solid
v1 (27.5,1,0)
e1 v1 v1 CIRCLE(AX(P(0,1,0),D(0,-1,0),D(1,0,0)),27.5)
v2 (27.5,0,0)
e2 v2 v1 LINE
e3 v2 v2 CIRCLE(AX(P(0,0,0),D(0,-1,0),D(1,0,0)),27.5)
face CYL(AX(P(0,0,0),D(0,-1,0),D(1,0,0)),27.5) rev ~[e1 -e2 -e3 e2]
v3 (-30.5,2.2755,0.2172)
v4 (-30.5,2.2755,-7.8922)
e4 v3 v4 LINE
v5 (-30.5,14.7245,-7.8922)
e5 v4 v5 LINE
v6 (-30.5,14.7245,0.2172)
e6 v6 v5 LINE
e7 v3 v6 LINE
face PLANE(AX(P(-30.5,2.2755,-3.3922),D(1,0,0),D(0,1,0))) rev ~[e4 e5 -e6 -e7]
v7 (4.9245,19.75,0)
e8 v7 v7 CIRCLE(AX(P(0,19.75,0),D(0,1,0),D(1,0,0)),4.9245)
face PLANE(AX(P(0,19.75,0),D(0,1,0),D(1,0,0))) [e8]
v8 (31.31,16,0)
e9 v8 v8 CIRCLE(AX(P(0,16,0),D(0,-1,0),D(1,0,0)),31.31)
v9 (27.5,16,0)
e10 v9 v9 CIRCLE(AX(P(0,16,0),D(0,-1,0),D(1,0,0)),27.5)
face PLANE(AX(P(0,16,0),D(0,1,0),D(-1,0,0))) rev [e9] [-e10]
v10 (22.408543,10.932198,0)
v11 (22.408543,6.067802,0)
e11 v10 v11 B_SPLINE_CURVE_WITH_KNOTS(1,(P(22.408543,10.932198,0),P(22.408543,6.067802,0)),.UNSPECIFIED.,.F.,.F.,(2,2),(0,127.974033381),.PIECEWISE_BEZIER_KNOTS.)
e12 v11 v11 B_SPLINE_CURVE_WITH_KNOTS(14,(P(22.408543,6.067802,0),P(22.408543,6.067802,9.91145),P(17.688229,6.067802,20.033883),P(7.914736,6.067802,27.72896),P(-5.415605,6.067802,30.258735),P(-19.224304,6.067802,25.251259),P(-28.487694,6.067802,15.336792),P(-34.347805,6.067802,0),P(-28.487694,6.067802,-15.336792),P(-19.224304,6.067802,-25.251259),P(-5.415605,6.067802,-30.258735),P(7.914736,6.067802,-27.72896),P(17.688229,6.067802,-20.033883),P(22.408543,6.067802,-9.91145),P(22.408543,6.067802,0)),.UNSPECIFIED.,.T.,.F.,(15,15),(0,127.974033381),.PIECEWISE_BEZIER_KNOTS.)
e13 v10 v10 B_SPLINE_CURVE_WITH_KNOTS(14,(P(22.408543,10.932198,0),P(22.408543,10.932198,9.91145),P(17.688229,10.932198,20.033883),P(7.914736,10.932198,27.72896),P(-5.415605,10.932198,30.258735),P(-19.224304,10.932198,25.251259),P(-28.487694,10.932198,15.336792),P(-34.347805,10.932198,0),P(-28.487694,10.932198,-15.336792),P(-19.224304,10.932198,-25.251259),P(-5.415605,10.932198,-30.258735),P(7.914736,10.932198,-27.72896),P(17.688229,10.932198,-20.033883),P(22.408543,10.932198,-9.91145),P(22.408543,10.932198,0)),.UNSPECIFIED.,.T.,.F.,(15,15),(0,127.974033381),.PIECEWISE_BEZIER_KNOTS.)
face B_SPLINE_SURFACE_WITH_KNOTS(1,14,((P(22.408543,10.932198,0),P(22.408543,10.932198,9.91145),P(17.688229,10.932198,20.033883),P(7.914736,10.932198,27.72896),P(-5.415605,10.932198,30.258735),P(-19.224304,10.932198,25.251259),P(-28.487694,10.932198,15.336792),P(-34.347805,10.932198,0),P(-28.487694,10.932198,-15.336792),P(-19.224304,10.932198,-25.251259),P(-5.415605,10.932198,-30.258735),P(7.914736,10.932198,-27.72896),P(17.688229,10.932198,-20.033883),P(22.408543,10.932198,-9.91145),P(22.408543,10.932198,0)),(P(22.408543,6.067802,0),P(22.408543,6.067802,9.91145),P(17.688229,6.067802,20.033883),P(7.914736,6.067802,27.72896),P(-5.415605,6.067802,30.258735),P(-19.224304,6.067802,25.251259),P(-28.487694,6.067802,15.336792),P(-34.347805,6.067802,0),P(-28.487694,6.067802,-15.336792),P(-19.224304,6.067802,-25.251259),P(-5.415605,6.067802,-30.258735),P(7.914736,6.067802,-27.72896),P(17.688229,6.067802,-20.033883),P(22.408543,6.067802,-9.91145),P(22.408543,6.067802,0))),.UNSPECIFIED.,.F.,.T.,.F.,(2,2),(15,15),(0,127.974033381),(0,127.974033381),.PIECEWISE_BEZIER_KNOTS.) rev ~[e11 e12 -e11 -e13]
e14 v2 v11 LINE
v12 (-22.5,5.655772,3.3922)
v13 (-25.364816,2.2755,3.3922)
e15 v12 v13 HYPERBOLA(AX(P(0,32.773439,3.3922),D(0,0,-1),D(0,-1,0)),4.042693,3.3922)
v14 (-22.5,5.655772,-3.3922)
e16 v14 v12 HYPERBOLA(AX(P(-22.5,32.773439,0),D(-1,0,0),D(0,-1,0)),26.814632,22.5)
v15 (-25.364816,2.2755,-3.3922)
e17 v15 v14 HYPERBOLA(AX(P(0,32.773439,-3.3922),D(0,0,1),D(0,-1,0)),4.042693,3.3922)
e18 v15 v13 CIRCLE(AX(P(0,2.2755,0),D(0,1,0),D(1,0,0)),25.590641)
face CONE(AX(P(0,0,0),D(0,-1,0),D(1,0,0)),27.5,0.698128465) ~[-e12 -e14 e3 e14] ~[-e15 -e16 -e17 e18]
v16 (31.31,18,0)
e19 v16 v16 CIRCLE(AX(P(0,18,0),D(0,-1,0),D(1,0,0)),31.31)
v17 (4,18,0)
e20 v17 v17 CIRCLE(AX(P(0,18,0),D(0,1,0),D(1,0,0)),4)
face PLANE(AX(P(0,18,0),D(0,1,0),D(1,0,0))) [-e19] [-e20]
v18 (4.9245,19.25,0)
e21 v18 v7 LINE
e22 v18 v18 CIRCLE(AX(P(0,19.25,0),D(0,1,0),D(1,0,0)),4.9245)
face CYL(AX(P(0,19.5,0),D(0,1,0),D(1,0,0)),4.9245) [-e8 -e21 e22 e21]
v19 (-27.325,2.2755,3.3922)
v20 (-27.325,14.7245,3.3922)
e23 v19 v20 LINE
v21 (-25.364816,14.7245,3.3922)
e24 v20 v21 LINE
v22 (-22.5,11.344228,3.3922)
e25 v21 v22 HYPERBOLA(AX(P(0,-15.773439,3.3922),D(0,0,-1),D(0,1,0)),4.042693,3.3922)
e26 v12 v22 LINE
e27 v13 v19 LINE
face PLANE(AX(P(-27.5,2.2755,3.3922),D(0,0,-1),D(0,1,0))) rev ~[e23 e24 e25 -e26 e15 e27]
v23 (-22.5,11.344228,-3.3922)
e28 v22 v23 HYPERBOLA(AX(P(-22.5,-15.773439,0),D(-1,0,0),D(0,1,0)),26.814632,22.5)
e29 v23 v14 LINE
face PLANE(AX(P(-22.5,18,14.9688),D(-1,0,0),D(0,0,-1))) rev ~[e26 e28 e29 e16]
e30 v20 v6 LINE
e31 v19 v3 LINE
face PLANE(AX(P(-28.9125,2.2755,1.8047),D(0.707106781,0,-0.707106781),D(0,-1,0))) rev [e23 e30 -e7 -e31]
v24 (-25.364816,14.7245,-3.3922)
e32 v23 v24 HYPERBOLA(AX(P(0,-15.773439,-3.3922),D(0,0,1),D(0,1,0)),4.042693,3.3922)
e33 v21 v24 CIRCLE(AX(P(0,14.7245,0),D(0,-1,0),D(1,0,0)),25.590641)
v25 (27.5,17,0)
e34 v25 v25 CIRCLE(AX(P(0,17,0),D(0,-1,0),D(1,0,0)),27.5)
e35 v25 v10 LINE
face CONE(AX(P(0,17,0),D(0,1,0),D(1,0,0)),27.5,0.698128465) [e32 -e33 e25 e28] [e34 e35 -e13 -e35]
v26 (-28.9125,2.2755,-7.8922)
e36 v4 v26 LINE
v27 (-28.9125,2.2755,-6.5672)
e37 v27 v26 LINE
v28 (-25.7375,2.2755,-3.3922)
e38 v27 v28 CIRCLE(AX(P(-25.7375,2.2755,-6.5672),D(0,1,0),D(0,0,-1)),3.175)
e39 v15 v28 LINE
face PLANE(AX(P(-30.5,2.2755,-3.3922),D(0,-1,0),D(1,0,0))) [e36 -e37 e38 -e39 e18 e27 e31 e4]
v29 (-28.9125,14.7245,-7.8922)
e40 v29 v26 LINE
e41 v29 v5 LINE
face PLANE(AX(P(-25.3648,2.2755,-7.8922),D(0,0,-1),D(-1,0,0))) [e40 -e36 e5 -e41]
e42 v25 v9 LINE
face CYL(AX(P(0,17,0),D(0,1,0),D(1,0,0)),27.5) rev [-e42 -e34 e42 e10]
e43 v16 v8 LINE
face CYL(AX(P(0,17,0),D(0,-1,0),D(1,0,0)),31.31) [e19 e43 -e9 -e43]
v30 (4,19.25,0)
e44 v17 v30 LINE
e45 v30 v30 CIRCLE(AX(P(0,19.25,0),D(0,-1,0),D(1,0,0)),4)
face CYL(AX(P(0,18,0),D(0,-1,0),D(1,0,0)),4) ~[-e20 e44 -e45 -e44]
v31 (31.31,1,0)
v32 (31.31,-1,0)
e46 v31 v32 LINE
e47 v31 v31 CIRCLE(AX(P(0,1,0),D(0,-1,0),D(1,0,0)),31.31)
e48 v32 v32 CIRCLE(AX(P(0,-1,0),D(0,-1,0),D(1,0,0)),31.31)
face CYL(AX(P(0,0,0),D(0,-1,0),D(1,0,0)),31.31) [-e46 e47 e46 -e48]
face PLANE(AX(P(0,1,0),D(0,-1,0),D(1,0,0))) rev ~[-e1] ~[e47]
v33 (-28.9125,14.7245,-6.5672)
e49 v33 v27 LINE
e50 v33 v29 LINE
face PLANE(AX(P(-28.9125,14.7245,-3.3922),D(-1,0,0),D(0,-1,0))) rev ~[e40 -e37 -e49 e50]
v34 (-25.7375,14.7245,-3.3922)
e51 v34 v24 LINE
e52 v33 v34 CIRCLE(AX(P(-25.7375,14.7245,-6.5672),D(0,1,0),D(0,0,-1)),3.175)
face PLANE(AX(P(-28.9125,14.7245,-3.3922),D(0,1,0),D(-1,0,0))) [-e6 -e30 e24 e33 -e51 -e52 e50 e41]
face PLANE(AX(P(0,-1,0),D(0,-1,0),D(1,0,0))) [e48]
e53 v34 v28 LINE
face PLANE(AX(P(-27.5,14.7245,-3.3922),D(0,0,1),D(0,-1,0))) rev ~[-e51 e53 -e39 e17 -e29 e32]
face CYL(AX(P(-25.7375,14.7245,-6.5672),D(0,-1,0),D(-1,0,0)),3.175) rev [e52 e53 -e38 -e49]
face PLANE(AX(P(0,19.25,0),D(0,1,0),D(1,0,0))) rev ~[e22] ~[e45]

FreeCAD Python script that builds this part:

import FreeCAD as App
import Part
import Sketcher
from FreeCAD import Vector
Q = App.Units.Quantity


def edges_at(feature, points):
    """Names of the edges that pass closest to the given points."""
    edges = feature.Shape.Edges
    near = lambda p: min(range(len(edges)), key=lambda i: edges[i].distToShape(Part.Vertex(*p))[0])
    return sorted({f"Edge{near(p) + 1}" for p in points})


def add_polygon(sketch, points):
    """Adds a closed chain of lines whose ends are joined by coincident constraints."""
    first, n = sketch.GeometryCount, len(points)
    for a, b in zip(points, points[1:] + points[:1]):
        sketch.addGeometry(Part.LineSegment(App.Vector(*a, 0), App.Vector(*b, 0)), False)
    for i in range(n):
        sketch.addConstraint(Sketcher.Constraint("Coincident", first + i, 2, first + (i + 1) % n, 1))

doc = App.newDocument("Part")
body = doc.addObject("PartDesign::Body", "Body")
body.AllowCompound = True

# Sketch on XY plane
sketch1 = doc.addObject("Sketcher::SketchObject", "Sketch")
body.addObject(sketch1)
sketch1.AttachmentSupport = (doc.XY_Plane, [""])
sketch1.MapMode = "FlatFace"
add_polygon(sketch1, [(0, 17), (0, 0), (28, 0), (20, 8), (28, 17)])  # lines 0-4
sketch1.addConstraint(Sketcher.Constraint("Vertical", 0))
sketch1.addConstraint(Sketcher.Constraint("Horizontal", 1))
sketch1.addConstraint(Sketcher.Constraint("Horizontal", 4))
sketch1.addConstraint(Sketcher.Constraint("Coincident", 0, 2, -1, 1))
sketch1.addConstraint(Sketcher.Constraint("Vertical", 1, 2, 3, 2))
sketch1.addConstraint(Sketcher.Constraint("Equal", 2, 3))
sketch1.addConstraint(Sketcher.Constraint("DistanceY", 0, 2, 0, 1, Q("17 mm")))
sketch1.addConstraint(Sketcher.Constraint("Angle", 2, Q("129.9998 deg")))
sketch1.addConstraint(Sketcher.Constraint("DistanceX", 1, 1, 1, 2, Q("27.5 mm")))
revolution = doc.addObject("PartDesign::Revolution", "Revolution")
body.addObject(revolution)
revolution.Profile = sketch1
revolution.ReferenceAxis = (sketch1, ["V_Axis"])
revolution.Angle = 360

# Sketch on XZ plane
sketch2 = doc.addObject("Sketcher::SketchObject", "Sketch001")
body.addObject(sketch2)
sketch2.AttachmentSupport = (doc.XZ_Plane, [""])
sketch2.MapMode = "FlatFace"
sketch2.addGeometry(Part.Circle(Vector(0, 0, 0), Vector(0, 0, 1), 31), False)
sketch2.addGeometry(Part.Circle(Vector(0, 0, 0), Vector(0, 0, 1), 28), False)
sketch2.addConstraint(Sketcher.Constraint("Coincident", 0, 3, -1, 1))
sketch2.addConstraint(Sketcher.Constraint("Coincident", 1, 3, -1, 1))
sketch2.addConstraint(Sketcher.Constraint("Diameter", 1, Q("55 mm")))
sketch2.addConstraint(Sketcher.Constraint("Diameter", 0, Q("62.62 mm")))
pad1 = doc.addObject("PartDesign::Pad", "Pad")
body.addObject(pad1)
pad1.Profile = sketch2
pad1.Type = "TwoLengths"
pad1.Length = 1
pad1.Length2 = 1

# Sketch on XZ plane
sketch3 = doc.addObject("Sketcher::SketchObject", "Sketch002")
body.addObject(sketch3)
sketch3.AttachmentSupport = (doc.XZ_Plane, [""])
sketch3.MapMode = "FlatFace"
sketch3.addGeometry(Part.Circle(Vector(0, 0, 0), Vector(0, 0, 1), 28), False)
sketch3.addConstraint(Sketcher.Constraint("Coincident", 0, 3, -1, 1))
sketch3.addConstraint(Sketcher.Constraint("Diameter", 0, Q("55 mm")))
pad2 = doc.addObject("PartDesign::Pad", "Pad001")
body.addObject(pad2)
pad2.Profile = sketch3
pad2.Length = 1
doc.recompute()

datumplane = doc.addObject("PartDesign::Plane", "DatumPlane")
body.addObject(datumplane)
datumplane.AttachmentSupport = (doc.XZ_Plane, [""])
datumplane.MapMode = "FlatFace"
datumplane.AttachmentOffset = App.Placement(Vector(0, 0, -8.5), App.Rotation())
mirrored = doc.addObject("PartDesign::Mirrored", "Mirrored")
body.addObject(mirrored)
mirrored.Originals = [pad1]
mirrored.MirrorPlane = (datumplane, [""])
body.Tip = mirrored

# Sketch on XZ plane
sketch4 = doc.addObject("Sketcher::SketchObject", "Sketch003")
body.addObject(sketch4)
sketch4.AttachmentSupport = (doc.XZ_Plane, [""])
sketch4.MapMode = "FlatFace"
sketch4.AttachmentOffset = App.Placement(Vector(0, 0, -17), App.Rotation())
sketch4.addGeometry(Part.Circle(Vector(0, 0, 0), Vector(0, 0, 1), 28), False)
sketch4.addConstraint(Sketcher.Constraint("Coincident", 0, 3, -1, 1))
sketch4.addConstraint(Sketcher.Constraint("Diameter", 0, Q("55 mm")))
pad3 = doc.addObject("PartDesign::Pad", "Pad002")
body.addObject(pad3)
pad3.Profile = sketch4
pad3.Length = 1
pad3.Reversed = True
doc.recompute()

chamfer = doc.addObject("PartDesign::Chamfer", "Chamfer")
body.addObject(chamfer)
chamfer.Base = (pad3, edges_at(pad3, [(-20.368, 8.5, 0)]))
chamfer.Size = 3.175

# Sketch on YZ plane
sketch5 = doc.addObject("Sketcher::SketchObject", "Sketch004")
body.addObject(sketch5)
sketch5.AttachmentSupport = (doc.YZ_Plane, [""])
sketch5.MapMode = "FlatFace"
sketch5.AttachmentOffset = App.Placement(Vector(0, 0, -27.5), App.Rotation())
add_polygon(sketch5, [(15, -3), (2, -3), (2, 3), (15, 3)])  # lines 0-3
sketch5.addConstraint(Sketcher.Constraint("Horizontal", 0))
sketch5.addConstraint(Sketcher.Constraint("Vertical", 1))
sketch5.addConstraint(Sketcher.Constraint("Horizontal", 2))
sketch5.addConstraint(Sketcher.Constraint("Vertical", 3))
sketch5.addConstraint(Sketcher.Constraint("DistanceX", 0, 2, 0, 1, Q("12.449 mm")))
sketch5.addConstraint(Sketcher.Constraint("DistanceY", 1, 1, 1, 2, Q("6.7844 mm")))
sketch5.addConstraint(Sketcher.Constraint("DistanceX", -1, 1, 0, 2, Q("2.2755 mm")))
sketch5.addConstraint(Sketcher.Constraint("DistanceY", 0, 2, -1, 1, Q("3.3922 mm")))
pad4 = doc.addObject("PartDesign::Pad", "Pad003")
body.addObject(pad4)
pad4.Profile = sketch5
pad4.Type = "TwoLengths"
pad4.Length = 3
pad4.Length2 = 5
pad4.Reversed = True
doc.recompute()

chamfer2 = doc.addObject("PartDesign::Chamfer", "Chamfer001")
body.addObject(chamfer2)
chamfer2.Base = (pad4, edges_at(pad4, [(-30.5, 8.5, 3.392)]))
chamfer2.Size = 3.175

# Sketch on XY plane
sketch6 = doc.addObject("Sketcher::SketchObject", "Sketch005")
body.addObject(sketch6)
sketch6.AttachmentSupport = (doc.XY_Plane, [""])
sketch6.MapMode = "FlatFace"
sketch6.AttachmentOffset = App.Placement(Vector(0, 0, -3.3922), App.Rotation())
add_polygon(sketch6, [(-28.9, 2.3), (-30.5, 2.3), (-30.5, 14.7), (-28.9, 14.7)])  # lines 0-3
sketch6.addConstraint(Sketcher.Constraint("Horizontal", 0))
sketch6.addConstraint(Sketcher.Constraint("Vertical", 1))
sketch6.addConstraint(Sketcher.Constraint("Horizontal", 2))
sketch6.addConstraint(Sketcher.Constraint("Vertical", 3))
sketch6.addConstraint(Sketcher.Constraint("DistanceX", 0, 2, -1, 1, Q("30.5 mm")))
sketch6.addConstraint(Sketcher.Constraint("DistanceY", 1, 1, 1, 2, Q("12.449 mm")))
sketch6.addConstraint(Sketcher.Constraint("DistanceX", 0, 2, 0, 1, Q("1.5875 mm")))
sketch6.addConstraint(Sketcher.Constraint("DistanceY", -1, 1, 0, 2, Q("2.2755 mm")))
pad5 = doc.addObject("PartDesign::Pad", "Pad004")
body.addObject(pad5)
pad5.Profile = sketch6
pad5.Length = 4.5
pad5.Reversed = True
doc.recompute()

fillet = doc.addObject("PartDesign::Fillet", "Fillet")
body.addObject(fillet)
fillet.Base = (pad5, edges_at(pad5, [(-28.913, 8.5, -3.392)]))
fillet.Radius = 3.175

# Sketch on XZ plane
sketch7 = doc.addObject("Sketcher::SketchObject", "Sketch006")
body.addObject(sketch7)
sketch7.AttachmentSupport = (doc.XZ_Plane, [""])
sketch7.MapMode = "FlatFace"
sketch7.AttachmentOffset = App.Placement(Vector(0, 0, -18), App.Rotation())
sketch7.addGeometry(Part.Circle(Vector(0, 0, 0), Vector(0, 0, 1), 4), False)
sketch7.addConstraint(Sketcher.Constraint("Coincident", 0, 3, -1, 1))
sketch7.addConstraint(Sketcher.Constraint("Diameter", 0, Q("8 mm")))
pad6 = doc.addObject("PartDesign::Pad", "Pad005")
body.addObject(pad6)
pad6.Profile = sketch7
pad6.Length = 1.5
pad6.Reversed = True

# Sketch on XZ plane
sketch8 = doc.addObject("Sketcher::SketchObject", "Sketch007")
body.addObject(sketch8)
sketch8.AttachmentSupport = (doc.XZ_Plane, [""])
sketch8.MapMode = "FlatFace"
sketch8.AttachmentOffset = App.Placement(Vector(0, 0, -19.5), App.Rotation())
sketch8.addGeometry(Part.Circle(Vector(0, 0, 0), Vector(0, 0, 1), 4.9), False)
sketch8.addConstraint(Sketcher.Constraint("Coincident", 0, 3, -1, 1))
sketch8.addConstraint(Sketcher.Constraint("Diameter", 0, Q("9.849 mm")))
pad7 = doc.addObject("PartDesign::Pad", "Pad006")
body.addObject(pad7)
pad7.Profile = sketch8
pad7.Length = 0.5
pad7.Midplane = True

doc.recompute()
